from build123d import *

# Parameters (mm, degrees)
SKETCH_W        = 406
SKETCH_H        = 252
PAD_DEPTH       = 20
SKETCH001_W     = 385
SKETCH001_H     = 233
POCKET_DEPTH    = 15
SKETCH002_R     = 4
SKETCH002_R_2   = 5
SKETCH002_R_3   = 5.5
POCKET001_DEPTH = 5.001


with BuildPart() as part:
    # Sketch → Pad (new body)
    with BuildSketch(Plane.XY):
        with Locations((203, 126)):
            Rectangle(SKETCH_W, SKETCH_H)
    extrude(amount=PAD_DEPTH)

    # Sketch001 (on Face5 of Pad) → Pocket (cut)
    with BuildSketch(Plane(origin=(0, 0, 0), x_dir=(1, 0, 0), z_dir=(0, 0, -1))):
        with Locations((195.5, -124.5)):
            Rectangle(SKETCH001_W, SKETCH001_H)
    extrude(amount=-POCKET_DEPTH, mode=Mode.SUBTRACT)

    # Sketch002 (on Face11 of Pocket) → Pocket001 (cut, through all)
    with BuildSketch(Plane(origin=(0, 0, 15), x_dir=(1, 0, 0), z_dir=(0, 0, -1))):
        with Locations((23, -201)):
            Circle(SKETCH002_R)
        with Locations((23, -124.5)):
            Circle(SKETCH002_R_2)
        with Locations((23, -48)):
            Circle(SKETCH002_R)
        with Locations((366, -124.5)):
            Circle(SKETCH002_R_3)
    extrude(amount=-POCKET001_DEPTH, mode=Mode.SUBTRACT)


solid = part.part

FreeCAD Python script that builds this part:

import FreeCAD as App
import Part
import Sketcher

doc = App.newDocument("Part")
body = doc.addObject("PartDesign::Body", "Body")

sketch1 = body.newObject("Sketcher::SketchObject", "Sketch")
sketch1.AttachmentSupport = (doc.getObject("XY_Plane"), [""])
sketch1.MapMode = "FlatFace"
sketch1.addGeometry([
    Part.LineSegment(App.Vector(0, 252, 0), App.Vector(0, 0, 0)),
    Part.LineSegment(App.Vector(0, 0, 0), App.Vector(406, 0, 0)),
    Part.LineSegment(App.Vector(406, 0, 0), App.Vector(406, 252, 0)),
    Part.LineSegment(App.Vector(406, 252, 0), App.Vector(0, 252, 0)),
], False)
sketch1.addConstraint([
    Sketcher.Constraint("Coincident", 0, 2, 1, 1),
    Sketcher.Constraint("Coincident", 1, 2, 2, 1),
    Sketcher.Constraint("Coincident", 2, 2, 3, 1),
    Sketcher.Constraint("Coincident", 3, 2, 0, 1),
    Sketcher.Constraint("Vertical", 0),
    Sketcher.Constraint("Horizontal", 1),
    Sketcher.Constraint("Vertical", 2),
    Sketcher.Constraint("Horizontal", 3),
    Sketcher.Constraint("Coincident", 0, 2, -1, 1),
    Sketcher.Constraint("DistanceX", 1, 1, 1, 2, 406.0),
    Sketcher.Constraint("DistanceY", 0, 2, 0, 1, 252.0),
])
pad1 = body.newObject("PartDesign::Pad", "Pad")
pad1.Profile = sketch1
pad1.Length = 20

sketch2 = body.newObject("Sketcher::SketchObject", "Sketch001")
sketch2.AttachmentSupport = (doc.getObject("XY_Plane"), [""])
sketch2.MapMode = "FlatFace"
sketch2.addGeometry([
    Part.LineSegment(App.Vector(3, 8, 0), App.Vector(3, 241, 0)),
    Part.LineSegment(App.Vector(3, 241, 0), App.Vector(388, 241, 0)),
    Part.LineSegment(App.Vector(388, 241, 0), App.Vector(388, 8, 0)),
    Part.LineSegment(App.Vector(388, 8, 0), App.Vector(3, 8, 0)),
], False)
sketch2.addConstraint([
    Sketcher.Constraint("Coincident", 0, 2, 1, 1),
    Sketcher.Constraint("Coincident", 1, 2, 2, 1),
    Sketcher.Constraint("Coincident", 2, 2, 3, 1),
    Sketcher.Constraint("Coincident", 3, 2, 0, 1),
    Sketcher.Constraint("Vertical", 0),
    Sketcher.Constraint("Horizontal", 1),
    Sketcher.Constraint("Vertical", 2),
    Sketcher.Constraint("Horizontal", 3),
    Sketcher.Constraint("DistanceX", 1, 1, 1, 2, 385.0),
    Sketcher.Constraint("DistanceY", 0, 1, 0, 2, 233.0),
    Sketcher.Constraint("DistanceX", -1, 1, 0, 2, 3.0),
    Sketcher.Constraint("DistanceY", -1, 1, 0, 2, 241.0),
])
pocket1 = body.newObject("PartDesign::Pocket", "Pocket")
pocket1.Profile = sketch2
pocket1.Length = 15
pocket1.Reversed = True

sketch3 = body.newObject("Sketcher::SketchObject", "Sketch002")
sketch3.AttachmentSupport = (doc.getObject("XY_Plane"), [""])
sketch3.MapMode = "FlatFace"
sketch3.AttachmentOffset = App.Placement(App.Vector(0, 0, 15), App.Rotation())
sketch3.addGeometry([
    Part.Circle(App.Vector(23, 201, 0), App.Vector(0, 0, 1), 4),
    Part.Circle(App.Vector(23, 124.5, 0), App.Vector(0, 0, 1), 5),
    Part.Circle(App.Vector(23, 48, 0), App.Vector(0, 0, 1), 4),
    Part.Circle(App.Vector(366, 124.5, 0), App.Vector(0, 0, 1), 5.5),
], False)
sketch3.addConstraint([
    Sketcher.Constraint("Equal", 0, 2),
    Sketcher.Constraint("Horizontal", 1, 3, 3, 3),
    Sketcher.Constraint("Vertical", 0, 3, 1, 3),
    Sketcher.Constraint("Vertical", 1, 3, 2, 3),
    Sketcher.Constraint("Diameter", 0, 8.0),
    Sketcher.Constraint("Diameter", 1, 10.0),
    Sketcher.Constraint("Diameter", 3, 11.0),
    Sketcher.Constraint("DistanceX", -1, 1, 0, 3, 23.0),
    Sketcher.Constraint("DistanceY", -1, 1, 0, 3, 201.0),
    Sketcher.Constraint("DistanceY", -1, 1, 2, 3, 48.0),
    Sketcher.Constraint("DistanceX", -1, 1, 3, 3, 366.0),
    Sketcher.Constraint("DistanceY", -1, 1, 1, 3, 124.5),
])
pocket2 = body.newObject("PartDesign::Pocket", "Pocket001")
pocket2.Profile = sketch3
pocket2.Type = "ThroughAll"
pocket2.Reversed = True

doc.recompute()
